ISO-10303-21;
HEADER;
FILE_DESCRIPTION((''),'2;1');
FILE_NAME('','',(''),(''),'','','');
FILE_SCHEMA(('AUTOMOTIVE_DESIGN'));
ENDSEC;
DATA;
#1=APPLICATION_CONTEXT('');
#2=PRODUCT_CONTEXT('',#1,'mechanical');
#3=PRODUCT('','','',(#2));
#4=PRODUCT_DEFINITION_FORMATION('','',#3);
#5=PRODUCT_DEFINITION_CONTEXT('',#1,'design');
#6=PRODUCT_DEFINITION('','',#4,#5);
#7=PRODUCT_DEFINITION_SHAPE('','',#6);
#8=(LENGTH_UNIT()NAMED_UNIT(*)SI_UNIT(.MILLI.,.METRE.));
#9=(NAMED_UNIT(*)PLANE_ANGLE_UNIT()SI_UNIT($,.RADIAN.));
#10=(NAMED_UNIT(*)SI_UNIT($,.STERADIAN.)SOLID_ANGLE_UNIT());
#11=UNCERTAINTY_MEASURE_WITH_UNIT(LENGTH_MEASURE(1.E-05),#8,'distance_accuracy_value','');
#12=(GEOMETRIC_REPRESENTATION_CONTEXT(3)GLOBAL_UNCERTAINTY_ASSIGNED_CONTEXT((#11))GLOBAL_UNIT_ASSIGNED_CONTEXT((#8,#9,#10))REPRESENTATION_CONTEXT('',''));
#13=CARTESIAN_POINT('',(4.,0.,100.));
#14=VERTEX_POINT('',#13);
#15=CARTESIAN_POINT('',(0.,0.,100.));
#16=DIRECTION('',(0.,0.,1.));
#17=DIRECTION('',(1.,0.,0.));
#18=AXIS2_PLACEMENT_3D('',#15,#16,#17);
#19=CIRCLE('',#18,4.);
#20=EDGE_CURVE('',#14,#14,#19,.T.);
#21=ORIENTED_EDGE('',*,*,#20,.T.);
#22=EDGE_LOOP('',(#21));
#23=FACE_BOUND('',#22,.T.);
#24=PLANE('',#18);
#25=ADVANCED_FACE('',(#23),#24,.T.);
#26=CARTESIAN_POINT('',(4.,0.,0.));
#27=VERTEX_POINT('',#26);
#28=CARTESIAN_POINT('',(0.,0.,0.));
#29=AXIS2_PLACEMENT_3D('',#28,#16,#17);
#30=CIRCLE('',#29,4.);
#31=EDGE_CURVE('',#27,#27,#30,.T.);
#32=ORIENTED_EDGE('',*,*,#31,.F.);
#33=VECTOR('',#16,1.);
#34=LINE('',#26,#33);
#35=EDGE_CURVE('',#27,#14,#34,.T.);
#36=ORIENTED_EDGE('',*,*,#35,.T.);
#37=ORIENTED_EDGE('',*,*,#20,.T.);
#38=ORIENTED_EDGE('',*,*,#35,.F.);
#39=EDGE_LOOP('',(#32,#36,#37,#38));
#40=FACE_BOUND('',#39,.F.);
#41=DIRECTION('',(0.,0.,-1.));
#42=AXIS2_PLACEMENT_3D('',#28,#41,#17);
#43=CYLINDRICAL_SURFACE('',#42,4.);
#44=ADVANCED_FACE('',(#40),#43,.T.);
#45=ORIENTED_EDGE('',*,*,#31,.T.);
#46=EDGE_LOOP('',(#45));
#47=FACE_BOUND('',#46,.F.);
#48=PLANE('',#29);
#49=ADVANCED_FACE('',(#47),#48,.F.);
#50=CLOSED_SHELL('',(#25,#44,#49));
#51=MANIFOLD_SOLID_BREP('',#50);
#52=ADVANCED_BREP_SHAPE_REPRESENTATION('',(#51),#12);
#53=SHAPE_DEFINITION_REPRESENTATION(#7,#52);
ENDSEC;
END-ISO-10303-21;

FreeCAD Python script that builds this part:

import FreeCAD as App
import Part
import Sketcher
from FreeCAD import Vector
Q = App.Units.Quantity

doc = App.newDocument("Part")
body = doc.addObject("PartDesign::Body", "Body")

# Sketch on XY plane
sketch1 = doc.addObject("Sketcher::SketchObject", "Sketch")
body.addObject(sketch1)
sketch1.AttachmentSupport = (doc.XY_Plane, [""])
sketch1.MapMode = "FlatFace"
sketch1.addGeometry(Part.Circle(Vector(0, 0, 0), Vector(0, 0, 1), 4), False)
sketch1.addConstraint([
    Sketcher.Constraint("Coincident", 0, 3, -1, 1),
    Sketcher.Constraint("Diameter", 0, Q("8 mm")),
])
pad1 = doc.addObject("PartDesign::Pad", "Pad")
body.addObject(pad1)
pad1.Profile = sketch1
pad1.Length = 100

doc.recompute()
